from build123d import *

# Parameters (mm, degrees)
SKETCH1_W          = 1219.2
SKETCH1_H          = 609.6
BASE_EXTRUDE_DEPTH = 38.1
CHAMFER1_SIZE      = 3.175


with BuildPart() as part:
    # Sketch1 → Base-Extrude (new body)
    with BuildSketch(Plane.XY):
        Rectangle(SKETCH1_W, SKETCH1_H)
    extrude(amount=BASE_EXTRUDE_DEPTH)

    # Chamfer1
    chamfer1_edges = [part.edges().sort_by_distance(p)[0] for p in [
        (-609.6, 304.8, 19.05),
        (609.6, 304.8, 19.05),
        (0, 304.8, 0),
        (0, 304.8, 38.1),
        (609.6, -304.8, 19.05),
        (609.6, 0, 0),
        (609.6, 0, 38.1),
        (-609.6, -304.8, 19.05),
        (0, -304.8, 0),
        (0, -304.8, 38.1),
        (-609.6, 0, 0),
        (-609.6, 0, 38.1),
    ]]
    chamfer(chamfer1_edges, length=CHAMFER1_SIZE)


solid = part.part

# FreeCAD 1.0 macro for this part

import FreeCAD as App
import Part
import Sketcher
from FreeCAD import Vector
Q = App.Units.Quantity


def add_polygon(sketch, points):
    """Adds a closed chain of lines whose ends are joined by coincident constraints."""
    first, n = sketch.GeometryCount, len(points)
    for a, b in zip(points, points[1:] + points[:1]):
        sketch.addGeometry(Part.LineSegment(App.Vector(*a, 0), App.Vector(*b, 0)), False)
    for i in range(n):
        sketch.addConstraint(Sketcher.Constraint("Coincident", first + i, 2, first + (i + 1) % n, 1))

doc = App.newDocument("Part")
body = doc.addObject("PartDesign::Body", "Body")

# Sketch on XY plane
sketch1 = body.newObject("Sketcher::SketchObject", "Sketch")
sketch1.AttachmentSupport = (doc.getObject("XY_Plane"), [""])
sketch1.MapMode = "FlatFace"
add_polygon(sketch1, [(-610, 305), (-610, -305), (610, -305), (610, 305)])  # lines 0-3
sketch1.addConstraint([
    Sketcher.Constraint("Vertical", 0),
    Sketcher.Constraint("Horizontal", 1),
    Sketcher.Constraint("Vertical", 2),
    Sketcher.Constraint("Horizontal", 3),
    Sketcher.Constraint("Symmetric", 0, 2, 2, 2, -1, 1),
    Sketcher.Constraint("DistanceX", 1, 1, 1, 2, Q("48 in")),
    Sketcher.Constraint("DistanceY", 0, 2, 0, 1, Q("24 in")),
])
pad1 = body.newObject("PartDesign::Pad", "Pad")
pad1.Profile = sketch1
pad1.Length = Q("1.5 in")
doc.recompute()

chamfer = body.newObject("PartDesign::Chamfer", "Chamfer")
chamfer.Base = (pad1, ["Edge1"])
chamfer.UseAllEdges = True
chamfer.Size = Q("0.125 in")

doc.recompute()
